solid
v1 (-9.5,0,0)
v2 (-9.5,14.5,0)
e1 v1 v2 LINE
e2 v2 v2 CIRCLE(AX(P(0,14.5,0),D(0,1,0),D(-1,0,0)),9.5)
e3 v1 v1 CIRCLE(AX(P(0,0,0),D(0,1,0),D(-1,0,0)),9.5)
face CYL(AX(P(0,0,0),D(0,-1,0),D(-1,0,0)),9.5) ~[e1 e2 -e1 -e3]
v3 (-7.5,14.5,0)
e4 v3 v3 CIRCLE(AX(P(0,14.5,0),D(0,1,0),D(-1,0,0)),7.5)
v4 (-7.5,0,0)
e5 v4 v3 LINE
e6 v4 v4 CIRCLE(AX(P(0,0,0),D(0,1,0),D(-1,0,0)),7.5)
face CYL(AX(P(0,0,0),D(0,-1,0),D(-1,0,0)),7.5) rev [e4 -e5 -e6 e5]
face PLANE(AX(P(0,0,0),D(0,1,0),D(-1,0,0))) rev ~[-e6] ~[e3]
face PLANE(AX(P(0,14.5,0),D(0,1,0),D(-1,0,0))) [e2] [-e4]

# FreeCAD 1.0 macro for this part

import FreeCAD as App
import Part
import Sketcher
from FreeCAD import Vector
Q = App.Units.Quantity

doc = App.newDocument("Part")
params = doc.addObject("Spreadsheet::Sheet", "Params")
for row, (alias, value) in enumerate([
    ("sketch1_diameter", "19 mm"),
    ("sketch1_diameter2", "15 mm"),
    ("pad1_length", "14.5 mm"),
], start=1):
    params.set(f"A{row}", alias)
    params.set(f"B{row}", "=" + value)
    params.setAlias(f"B{row}", alias)

body = doc.addObject("PartDesign::Body", "Body")

# Sketch on XZ plane
sketch1 = body.newObject("Sketcher::SketchObject", "Sketch")
sketch1.AttachmentSupport = (doc.getObject("XZ_Plane"), [""])
sketch1.MapMode = "FlatFace"
sketch1.addGeometry(Part.Circle(Vector(0, 0, 0), Vector(0, 0, 1), 10), False)
sketch1.addGeometry(Part.Circle(Vector(0, 0, 0), Vector(0, 0, 1), 8), False)
sketch1.addConstraint(Sketcher.Constraint("Coincident", 0, 3, -1, 1))
sketch1.addConstraint(Sketcher.Constraint("Coincident", 1, 3, -1, 1))
sketch1.addConstraint(Sketcher.Constraint("Diameter", 0, Q("19 mm")))
sketch1.addConstraint(Sketcher.Constraint("Diameter", 1, Q("15 mm")))
sketch1.setExpression("Constraints[2]", "Params.sketch1_diameter")
sketch1.setExpression("Constraints[3]", "Params.sketch1_diameter2")
pad1 = body.newObject("PartDesign::Pad", "Pad")
pad1.Profile = sketch1
pad1.setExpression("Length", "Params.pad1_length")
pad1.Reversed = True

doc.recompute()
